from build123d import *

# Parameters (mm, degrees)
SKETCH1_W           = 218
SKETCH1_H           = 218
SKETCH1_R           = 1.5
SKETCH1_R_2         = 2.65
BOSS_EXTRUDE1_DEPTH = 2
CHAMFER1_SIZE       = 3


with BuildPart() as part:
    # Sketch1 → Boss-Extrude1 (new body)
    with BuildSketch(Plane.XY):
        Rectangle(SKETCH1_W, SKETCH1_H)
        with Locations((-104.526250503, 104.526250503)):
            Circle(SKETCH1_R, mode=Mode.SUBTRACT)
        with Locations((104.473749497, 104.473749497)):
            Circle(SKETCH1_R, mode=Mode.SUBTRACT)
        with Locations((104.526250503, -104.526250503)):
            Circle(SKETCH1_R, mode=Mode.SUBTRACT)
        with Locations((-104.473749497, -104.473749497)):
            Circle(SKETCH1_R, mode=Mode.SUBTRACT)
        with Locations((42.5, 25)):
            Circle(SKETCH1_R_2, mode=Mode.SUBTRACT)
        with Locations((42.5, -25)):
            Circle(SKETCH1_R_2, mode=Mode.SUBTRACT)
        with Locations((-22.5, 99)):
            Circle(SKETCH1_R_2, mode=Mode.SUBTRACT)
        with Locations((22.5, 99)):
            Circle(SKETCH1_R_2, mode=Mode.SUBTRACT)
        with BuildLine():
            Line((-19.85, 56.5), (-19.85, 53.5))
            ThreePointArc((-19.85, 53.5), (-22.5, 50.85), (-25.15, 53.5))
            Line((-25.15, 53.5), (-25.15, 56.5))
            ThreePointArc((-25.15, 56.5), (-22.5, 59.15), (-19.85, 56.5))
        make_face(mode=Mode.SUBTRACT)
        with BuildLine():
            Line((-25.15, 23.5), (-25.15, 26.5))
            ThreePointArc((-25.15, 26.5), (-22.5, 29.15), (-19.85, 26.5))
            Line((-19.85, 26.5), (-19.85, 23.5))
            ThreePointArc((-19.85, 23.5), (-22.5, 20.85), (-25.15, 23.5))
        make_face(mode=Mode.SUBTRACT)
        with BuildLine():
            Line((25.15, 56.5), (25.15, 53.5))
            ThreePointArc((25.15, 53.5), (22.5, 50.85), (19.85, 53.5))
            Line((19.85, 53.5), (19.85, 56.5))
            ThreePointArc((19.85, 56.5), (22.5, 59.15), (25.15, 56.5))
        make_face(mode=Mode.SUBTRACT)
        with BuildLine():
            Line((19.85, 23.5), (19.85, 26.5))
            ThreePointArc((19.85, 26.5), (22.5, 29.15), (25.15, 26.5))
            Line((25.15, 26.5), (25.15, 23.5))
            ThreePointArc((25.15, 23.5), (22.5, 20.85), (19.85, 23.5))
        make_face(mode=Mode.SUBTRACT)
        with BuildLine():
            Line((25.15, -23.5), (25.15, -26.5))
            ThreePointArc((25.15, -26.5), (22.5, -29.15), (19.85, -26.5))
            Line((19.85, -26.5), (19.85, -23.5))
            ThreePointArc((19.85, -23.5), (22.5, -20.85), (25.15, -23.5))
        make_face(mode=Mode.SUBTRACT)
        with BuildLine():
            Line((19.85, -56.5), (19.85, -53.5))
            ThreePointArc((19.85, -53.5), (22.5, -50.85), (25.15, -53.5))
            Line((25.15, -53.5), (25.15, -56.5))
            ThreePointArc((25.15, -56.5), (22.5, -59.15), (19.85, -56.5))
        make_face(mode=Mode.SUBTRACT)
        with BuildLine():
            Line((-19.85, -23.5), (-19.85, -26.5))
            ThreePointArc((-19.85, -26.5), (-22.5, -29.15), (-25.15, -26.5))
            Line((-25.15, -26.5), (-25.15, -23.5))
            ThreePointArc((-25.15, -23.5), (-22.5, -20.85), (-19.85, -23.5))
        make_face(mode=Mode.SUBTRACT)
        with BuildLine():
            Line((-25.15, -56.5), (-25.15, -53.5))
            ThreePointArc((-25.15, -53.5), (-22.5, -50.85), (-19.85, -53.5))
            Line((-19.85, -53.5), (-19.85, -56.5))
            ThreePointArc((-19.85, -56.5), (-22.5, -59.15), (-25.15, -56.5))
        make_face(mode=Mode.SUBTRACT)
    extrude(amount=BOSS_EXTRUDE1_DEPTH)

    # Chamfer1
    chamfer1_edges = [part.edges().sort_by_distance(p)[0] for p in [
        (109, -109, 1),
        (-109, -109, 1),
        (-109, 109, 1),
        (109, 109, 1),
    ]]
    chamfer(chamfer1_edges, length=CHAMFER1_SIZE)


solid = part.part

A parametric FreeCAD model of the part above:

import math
import FreeCAD as App
import Part
import Sketcher

V = App.Vector
Q = App.Units.Quantity


def edges_at(feature, points):
    """Names of the edges that pass closest to the given points."""
    edges = feature.Shape.Edges
    near = lambda p: min(range(len(edges)), key=lambda i: edges[i].distToShape(Part.Vertex(*p))[0])
    return sorted({f"Edge{near(p) + 1}" for p in points})


def add_polygon(sketch, points):
    """Adds a closed chain of lines whose ends are joined by coincident constraints."""
    first, n = sketch.GeometryCount, len(points)
    for a, b in zip(points, points[1:] + points[:1]):
        sketch.addGeometry(Part.LineSegment(App.Vector(*a, 0), App.Vector(*b, 0)), False)
    for i in range(n):
        sketch.addConstraint(Sketcher.Constraint("Coincident", first + i, 2, first + (i + 1) % n, 1))

doc = App.newDocument("Part")
body = doc.addObject("PartDesign::Body", "Body")

# Sketch on XY plane
sketch1 = body.newObject("Sketcher::SketchObject", "Sketch")
sketch1.AttachmentSupport = (doc.getObject("XY_Plane"), [""])
sketch1.MapMode = "FlatFace"
add_polygon(sketch1, [(-109, 109), (-109, -109), (109, -109), (109, 109)])  # lines 0-3
sketch1.addGeometry(Part.Circle(V(-104.473749, -104.473749, 0), V(0, 0, 1), 1.5), False)  # 4
sketch1.addGeometry(Part.ArcOfCircle(Part.Circle(V(-22.5, -56.5, 0), V(0, 0, 1), 2.65), math.radians(180), math.radians(360)), False)  # 5
sketch1.addGeometry(Part.LineSegment(V(-25.15, -56.5, 0), V(-25.15, -53.5, 0)), False)  # 6
sketch1.addGeometry(Part.ArcOfCircle(Part.Circle(V(-22.5, -53.5, 0), V(0, 0, 1), 2.65), math.radians(0), math.radians(180)), False)  # 7
sketch1.addGeometry(Part.LineSegment(V(-19.85, -53.5, 0), V(-19.85, -56.5, 0)), False)  # 8
sketch1.addGeometry(Part.ArcOfCircle(Part.Circle(V(-22.5, -23.5, 0), V(0, 0, 1), 2.65), math.radians(0), math.radians(180)), False)  # 9
sketch1.addGeometry(Part.LineSegment(V(-19.85, -23.5, 0), V(-19.85, -26.5, 0)), False)  # 10
sketch1.addGeometry(Part.ArcOfCircle(Part.Circle(V(-22.5, -26.5, 0), V(0, 0, 1), 2.65), math.radians(180), math.radians(360)), False)  # 11
sketch1.addGeometry(Part.LineSegment(V(-25.15, -26.5, 0), V(-25.15, -23.5, 0)), False)  # 12
sketch1.addGeometry(Part.ArcOfCircle(Part.Circle(V(22.5, -56.5, 0), V(0, 0, 1), 2.65), math.radians(180), math.radians(360)), False)  # 13
sketch1.addGeometry(Part.LineSegment(V(19.85, -56.5, 0), V(19.85, -53.5, 0)), False)  # 14
sketch1.addGeometry(Part.ArcOfCircle(Part.Circle(V(22.5, -53.5, 0), V(0, 0, 1), 2.65), math.radians(0), math.radians(180)), False)  # 15
sketch1.addGeometry(Part.LineSegment(V(25.15, -53.5, 0), V(25.15, -56.5, 0)), False)  # 16
sketch1.addGeometry(Part.Circle(V(104.526251, -104.526251, 0), V(0, 0, 1), 1.5), False)  # 17
sketch1.addGeometry(Part.ArcOfCircle(Part.Circle(V(22.5, -23.5, 0), V(0, 0, 1), 2.65), math.radians(0), math.radians(180)), False)  # 18
sketch1.addGeometry(Part.LineSegment(V(25.15, -23.5, 0), V(25.15, -26.5, 0)), False)  # 19
sketch1.addGeometry(Part.ArcOfCircle(Part.Circle(V(22.5, -26.5, 0), V(0, 0, 1), 2.65), math.radians(180), math.radians(360)), False)  # 20
sketch1.addGeometry(Part.LineSegment(V(19.85, -26.5, 0), V(19.85, -23.5, 0)), False)  # 21
sketch1.addGeometry(Part.Circle(V(42.5, -25, 0), V(0, 0, 1), 2.65), False)  # 22
sketch1.addGeometry(Part.ArcOfCircle(Part.Circle(V(-22.5, 23.5, 0), V(0, 0, 1), 2.65), math.radians(180), math.radians(360)), False)  # 23
sketch1.addGeometry(Part.LineSegment(V(-25.15, 23.5, 0), V(-25.15, 26.5, 0)), False)  # 24
sketch1.addGeometry(Part.ArcOfCircle(Part.Circle(V(-22.5, 26.5, 0), V(0, 0, 1), 2.65), math.radians(0), math.radians(180)), False)  # 25
sketch1.addGeometry(Part.LineSegment(V(-19.85, 26.5, 0), V(-19.85, 23.5, 0)), False)  # 26
sketch1.addGeometry(Part.Circle(V(-104.526251, 104.526251, 0), V(0, 0, 1), 1.5), False)  # 27
sketch1.addGeometry(Part.ArcOfCircle(Part.Circle(V(-22.5, 56.5, 0), V(0, 0, 1), 2.65), math.radians(0), math.radians(180)), False)  # 28
sketch1.addGeometry(Part.LineSegment(V(-19.85, 56.5, 0), V(-19.85, 53.5, 0)), False)  # 29
sketch1.addGeometry(Part.ArcOfCircle(Part.Circle(V(-22.5, 53.5, 0), V(0, 0, 1), 2.65), math.radians(180), math.radians(360)), False)  # 30
sketch1.addGeometry(Part.LineSegment(V(-25.15, 53.5, 0), V(-25.15, 56.5, 0)), False)  # 31
sketch1.addGeometry(Part.Circle(V(-22.5, 99, 0), V(0, 0, 1), 2.65), False)  # 32
sketch1.addGeometry(Part.ArcOfCircle(Part.Circle(V(22.5, 23.5, 0), V(0, 0, 1), 2.65), math.radians(180), math.radians(360)), False)  # 33
sketch1.addGeometry(Part.LineSegment(V(19.85, 23.5, 0), V(19.85, 26.5, 0)), False)  # 34
sketch1.addGeometry(Part.ArcOfCircle(Part.Circle(V(22.5, 26.5, 0), V(0, 0, 1), 2.65), math.radians(0), math.radians(180)), False)  # 35
sketch1.addGeometry(Part.LineSegment(V(25.15, 26.5, 0), V(25.15, 23.5, 0)), False)  # 36
sketch1.addGeometry(Part.Circle(V(42.5, 25, 0), V(0, 0, 1), 2.65), False)  # 37
sketch1.addGeometry(Part.ArcOfCircle(Part.Circle(V(22.5, 56.5, 0), V(0, 0, 1), 2.65), math.radians(0), math.radians(180)), False)  # 38
sketch1.addGeometry(Part.LineSegment(V(25.15, 56.5, 0), V(25.15, 53.5, 0)), False)  # 39
sketch1.addGeometry(Part.ArcOfCircle(Part.Circle(V(22.5, 53.5, 0), V(0, 0, 1), 2.65), math.radians(180), math.radians(360)), False)  # 40
sketch1.addGeometry(Part.LineSegment(V(19.85, 53.5, 0), V(19.85, 56.5, 0)), False)  # 41
sketch1.addGeometry(Part.Circle(V(22.5, 99, 0), V(0, 0, 1), 2.65), False)  # 42
sketch1.addGeometry(Part.Circle(V(104.473749, 104.473749, 0), V(0, 0, 1), 1.5), False)  # 43
sketch1.addConstraint([
    Sketcher.Constraint("Tangent", 5, 1, 6, 1),
    Sketcher.Constraint("Tangent", 6, 2, 7, 2),
    Sketcher.Constraint("Tangent", 7, 1, 8, 1),
    Sketcher.Constraint("Tangent", 8, 2, 5, 2),
    Sketcher.Constraint("Tangent", 9, 1, 10, 1),
    Sketcher.Constraint("Tangent", 10, 2, 11, 2),
    Sketcher.Constraint("Tangent", 11, 1, 12, 1),
    Sketcher.Constraint("Tangent", 12, 2, 9, 2),
    Sketcher.Constraint("Tangent", 13, 1, 14, 1),
    Sketcher.Constraint("Tangent", 14, 2, 15, 2),
    Sketcher.Constraint("Tangent", 15, 1, 16, 1),
    Sketcher.Constraint("Tangent", 16, 2, 13, 2),
    Sketcher.Constraint("Tangent", 18, 1, 19, 1),
    Sketcher.Constraint("Tangent", 19, 2, 20, 2),
    Sketcher.Constraint("Tangent", 20, 1, 21, 1),
    Sketcher.Constraint("Tangent", 21, 2, 18, 2),
    Sketcher.Constraint("Tangent", 23, 1, 24, 1),
    Sketcher.Constraint("Tangent", 24, 2, 25, 2),
    Sketcher.Constraint("Tangent", 25, 1, 26, 1),
    Sketcher.Constraint("Tangent", 26, 2, 23, 2),
    Sketcher.Constraint("Tangent", 28, 1, 29, 1),
    Sketcher.Constraint("Tangent", 29, 2, 30, 2),
    Sketcher.Constraint("Tangent", 30, 1, 31, 1),
    Sketcher.Constraint("Tangent", 31, 2, 28, 2),
    Sketcher.Constraint("Tangent", 33, 1, 34, 1),
    Sketcher.Constraint("Tangent", 34, 2, 35, 2),
    Sketcher.Constraint("Tangent", 35, 1, 36, 1),
    Sketcher.Constraint("Tangent", 36, 2, 33, 2),
    Sketcher.Constraint("Tangent", 38, 1, 39, 1),
    Sketcher.Constraint("Tangent", 39, 2, 40, 2),
    Sketcher.Constraint("Tangent", 40, 1, 41, 1),
    Sketcher.Constraint("Tangent", 41, 2, 38, 2),
    Sketcher.Constraint("Vertical", 0),
    Sketcher.Constraint("Horizontal", 1),
    Sketcher.Constraint("Vertical", 2),
    Sketcher.Constraint("Horizontal", 3),
    Sketcher.Constraint("Vertical", 6),
    Sketcher.Constraint("Vertical", 8),
    Sketcher.Constraint("Vertical", 10),
    Sketcher.Constraint("Vertical", 12),
    Sketcher.Constraint("Vertical", 14),
    Sketcher.Constraint("Vertical", 16),
    Sketcher.Constraint("Vertical", 19),
    Sketcher.Constraint("Vertical", 21),
    Sketcher.Constraint("Vertical", 24),
    Sketcher.Constraint("Vertical", 26),
    Sketcher.Constraint("Vertical", 29),
    Sketcher.Constraint("Vertical", 31),
    Sketcher.Constraint("Vertical", 34),
    Sketcher.Constraint("Vertical", 36),
    Sketcher.Constraint("Vertical", 39),
    Sketcher.Constraint("Vertical", 41),
    Sketcher.Constraint("Equal", 7, 9),
    Sketcher.Constraint("Equal", 11, 13),
    Sketcher.Constraint("Equal", 4, 17),
    Sketcher.Constraint("Equal", 15, 18),
    Sketcher.Constraint("Equal", 20, 22),
    Sketcher.Constraint("Equal", 22, 23),
    Sketcher.Constraint("Equal", 17, 27),
    Sketcher.Constraint("Equal", 25, 28),
    Sketcher.Constraint("Equal", 30, 32),
    Sketcher.Constraint("Equal", 32, 33),
    Sketcher.Constraint("Equal", 35, 37),
    Sketcher.Constraint("Equal", 37, 38),
    Sketcher.Constraint("Equal", 40, 42),
    Sketcher.Constraint("Equal", 27, 43),
    Sketcher.Constraint("Symmetric", 18, 3, 23, 3, -1, 1),
    Sketcher.Constraint("Symmetric", 17, 3, 27, 3, -1, 1),
    Sketcher.Constraint("Symmetric", 13, 3, 28, 3, -1, 1),
    Sketcher.Constraint("Symmetric", 9, 3, 33, 3, -1, 1),
    Sketcher.Constraint("Symmetric", 5, 3, 38, 3, -1, 1),
    Sketcher.Constraint("Symmetric", 4, 3, 43, 3, -1, 1),
    Sketcher.Constraint("Symmetric", 0, 2, 2, 2, -1, 1),
    Sketcher.Constraint("Symmetric", 5, 3, 13, 3, -2),
    Sketcher.Constraint("Symmetric", 9, 3, 18, 3, -2),
    Sketcher.Constraint("Symmetric", 32, 3, 42, 3, -2),
    Sketcher.Constraint("Symmetric", 22, 3, 37, 3, -1),
    Sketcher.Constraint("Horizontal", 7, 3, 15, 3),
    Sketcher.Constraint("Horizontal", 11, 3, 20, 3),
    Sketcher.Constraint("Horizontal", 25, 3, 35, 3),
    Sketcher.Constraint("Horizontal", 30, 3, 40, 3),
    Sketcher.Constraint("Vertical", 7, 3, 9, 3),
    Sketcher.Constraint("Vertical", 30, 3, 32, 3),
    Sketcher.Constraint("Equal", 3, 0),
    Sketcher.Constraint("Equal", 8, 10),
    Sketcher.Constraint("Equal", 21, 24),
    Sketcher.Constraint("Equal", 26, 29),
    Sketcher.Constraint("Diameter", 4, Q("3 mm")),
    Sketcher.Constraint("Diameter", 22, Q("5.3 mm")),
    Sketcher.Constraint("DistanceX", 1, 1, 1, 2, Q("218 mm")),
    Sketcher.Constraint("DistanceY", 6, 1, 6, 2, Q("3 mm")),
    Sketcher.Constraint("DistanceY", 22, 3, -1, 1, Q("25 mm")),
    Sketcher.Constraint("DistanceY", -1, 1, 32, 3, Q("99 mm")),
    Sketcher.Constraint("DistanceY", 7, 3, 9, 3, Q("30 mm")),
    Sketcher.Constraint("DistanceX", 5, 3, 13, 3, Q("45 mm")),
    Sketcher.Constraint("DistanceX", 18, 3, 22, 3, Q("20 mm")),
    Sketcher.Constraint("DistanceY", 9, 3, 23, 3, Q("47 mm")),
    Sketcher.Constraint("DistanceX", 4, 3, -1, 1, Q("104.473749 mm")),
    Sketcher.Constraint("DistanceY", 4, 3, -1, 1, Q("104.473749 mm")),
    Sketcher.Constraint("DistanceX", -1, 1, 17, 3, Q("104.526251 mm")),
    Sketcher.Constraint("DistanceY", 17, 3, -1, 1, Q("104.526251 mm")),
])
pad1 = body.newObject("PartDesign::Pad", "Pad")
pad1.Profile = sketch1
pad1.Length = 2
doc.recompute()

chamfer = body.newObject("PartDesign::Chamfer", "Chamfer")
chamfer.Base = (pad1, edges_at(pad1, [
    (109, -109, 1),
    (-109, -109, 1),
    (-109, 109, 1),
    (109, 109, 1),
]))
chamfer.Size = 3

doc.recompute()
